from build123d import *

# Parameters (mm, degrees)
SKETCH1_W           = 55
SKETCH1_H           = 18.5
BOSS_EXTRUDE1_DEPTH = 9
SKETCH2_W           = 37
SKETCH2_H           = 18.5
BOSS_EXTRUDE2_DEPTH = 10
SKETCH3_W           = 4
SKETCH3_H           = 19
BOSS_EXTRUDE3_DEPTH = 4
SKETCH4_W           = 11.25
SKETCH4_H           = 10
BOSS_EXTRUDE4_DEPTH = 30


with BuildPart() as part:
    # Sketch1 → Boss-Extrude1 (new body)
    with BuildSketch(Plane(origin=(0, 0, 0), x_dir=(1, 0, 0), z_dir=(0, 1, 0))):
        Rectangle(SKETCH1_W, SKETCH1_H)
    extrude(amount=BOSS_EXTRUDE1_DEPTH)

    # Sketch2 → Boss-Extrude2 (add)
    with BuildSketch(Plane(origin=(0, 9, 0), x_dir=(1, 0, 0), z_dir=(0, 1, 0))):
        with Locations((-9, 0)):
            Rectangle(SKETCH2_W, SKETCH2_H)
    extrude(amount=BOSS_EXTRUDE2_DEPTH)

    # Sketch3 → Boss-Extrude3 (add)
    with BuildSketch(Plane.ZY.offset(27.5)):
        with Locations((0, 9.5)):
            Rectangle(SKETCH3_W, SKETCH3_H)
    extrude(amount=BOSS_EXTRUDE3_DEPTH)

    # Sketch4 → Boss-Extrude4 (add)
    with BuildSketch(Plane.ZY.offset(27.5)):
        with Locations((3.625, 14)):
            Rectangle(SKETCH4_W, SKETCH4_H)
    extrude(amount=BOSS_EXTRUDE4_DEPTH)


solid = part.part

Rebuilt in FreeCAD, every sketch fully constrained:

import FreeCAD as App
import Part
import Sketcher

V = App.Vector


def add_polygon(sketch, points):
    """Adds a closed chain of lines whose ends are joined by coincident constraints."""
    first, n = sketch.GeometryCount, len(points)
    for a, b in zip(points, points[1:] + points[:1]):
        sketch.addGeometry(Part.LineSegment(App.Vector(*a, 0), App.Vector(*b, 0)), False)
    for i in range(n):
        sketch.addConstraint(Sketcher.Constraint("Coincident", first + i, 2, first + (i + 1) % n, 1))

doc = App.newDocument("Part")
params = doc.addObject("Spreadsheet::Sheet", "Params")
for row, (alias, value) in enumerate([
    ("sketch1_width", "55 mm"),
    ("sketch1_height", "18.5 mm"),
    ("pad1_length", "9 mm"),
    ("sketch2_width", "37 mm"),
    ("sketch2_height", "18.5 mm"),
    ("pad2_length", "10 mm"),
    ("sketch3_width", "19 mm"),
    ("sketch3_height", "4 mm"),
    ("pad3_length", "4 mm"),
    ("sketch4_width", "10 mm"),
    ("sketch4_height", "11.25 mm"),
    ("pad4_length", "30 mm"),
], start=1):
    params.set(f"A{row}", alias)
    params.set(f"B{row}", "=" + value)
    params.setAlias(f"B{row}", alias)

body = doc.addObject("PartDesign::Body", "Body")

sketch1 = doc.addObject("Sketcher::SketchObject", "Sketch")
body.addObject(sketch1)
sketch1.AttachmentSupport = (doc.XZ_Plane, [""])
sketch1.MapMode = "FlatFace"
add_polygon(sketch1, [(-28, -9), (-28, 9), (28, 9), (28, -9)])
sketch1.addConstraint([
    Sketcher.Constraint("Vertical", 0),
    Sketcher.Constraint("Horizontal", 1),
    Sketcher.Constraint("Vertical", 2),
    Sketcher.Constraint("Horizontal", 3),
    Sketcher.Constraint("Symmetric", 0, 2, 2, 2, -1, 1),
    Sketcher.Constraint("DistanceX", 1, 1, 1, 2, 55.0),
    Sketcher.Constraint("DistanceY", 0, 1, 0, 2, 18.5),
])
sketch1.setExpression("Constraints[9]", "Params.sketch1_width")
sketch1.setExpression("Constraints[10]", "Params.sketch1_height")
pad1 = doc.addObject("PartDesign::Pad", "Pad")
body.addObject(pad1)
pad1.Profile = sketch1
pad1.setExpression("Length", "Params.pad1_length")
pad1.Reversed = True

sketch2 = doc.addObject("Sketcher::SketchObject", "Sketch001")
body.addObject(sketch2)
sketch2.AttachmentSupport = (doc.XZ_Plane, [""])
sketch2.MapMode = "FlatFace"
sketch2.AttachmentOffset = App.Placement(V(0, 0, -9), App.Rotation())
add_polygon(sketch2, [(-28, -9), (-28, 9), (10, 9), (10, -9)])
sketch2.addConstraint([
    Sketcher.Constraint("Vertical", 0),
    Sketcher.Constraint("Horizontal", 1),
    Sketcher.Constraint("Vertical", 2),
    Sketcher.Constraint("Horizontal", 3),
    Sketcher.Constraint("DistanceX", 1, 1, 1, 2, 37.0),
    Sketcher.Constraint("DistanceY", 0, 1, 0, 2, 18.5),
    Sketcher.Constraint("DistanceX", 0, 2, -1, 1, 27.5),
    Sketcher.Constraint("DistanceY", -1, 1, 0, 2, 9.25),
])
sketch2.setExpression("Constraints[8]", "Params.sketch2_width")
sketch2.setExpression("Constraints[9]", "Params.sketch2_height")
pad2 = doc.addObject("PartDesign::Pad", "Pad001")
body.addObject(pad2)
pad2.Profile = sketch2
pad2.setExpression("Length", "Params.pad2_length")
pad2.Reversed = True

sketch3 = doc.addObject("Sketcher::SketchObject", "Sketch002")
body.addObject(sketch3)
sketch3.AttachmentSupport = (doc.YZ_Plane, [""])
sketch3.MapMode = "FlatFace"
sketch3.AttachmentOffset = App.Placement(V(0, 0, -27.5), App.Rotation())
add_polygon(sketch3, [(19, -2), (0, -2), (0, 2), (19, 2)])
sketch3.addConstraint([
    Sketcher.Constraint("Horizontal", 0),
    Sketcher.Constraint("Vertical", 1),
    Sketcher.Constraint("Horizontal", 2),
    Sketcher.Constraint("Vertical", 3),
    Sketcher.Constraint("Symmetric", 0, 2, 1, 2, -1, 1),
    Sketcher.Constraint("DistanceX", 0, 2, 0, 1, 19.0),
    Sketcher.Constraint("DistanceY", 1, 1, 1, 2, 4.0),
])
sketch3.setExpression("Constraints[9]", "Params.sketch3_width")
sketch3.setExpression("Constraints[10]", "Params.sketch3_height")
pad3 = doc.addObject("PartDesign::Pad", "Pad002")
body.addObject(pad3)
pad3.Profile = sketch3
pad3.setExpression("Length", "Params.pad3_length")
pad3.Reversed = True

sketch4 = doc.addObject("Sketcher::SketchObject", "Sketch003")
body.addObject(sketch4)
sketch4.AttachmentSupport = (doc.YZ_Plane, [""])
sketch4.MapMode = "FlatFace"
sketch4.AttachmentOffset = App.Placement(V(0, 0, -27.5), App.Rotation())
add_polygon(sketch4, [(19, -2), (9, -2), (9, 9), (19, 9)])
sketch4.addConstraint([
    Sketcher.Constraint("Horizontal", 0),
    Sketcher.Constraint("Vertical", 1),
    Sketcher.Constraint("Horizontal", 2),
    Sketcher.Constraint("Vertical", 3),
    Sketcher.Constraint("DistanceX", 0, 2, 0, 1, 10.0),
    Sketcher.Constraint("DistanceX", -1, 1, 0, 2, 9.0),
    Sketcher.Constraint("DistanceY", 0, 2, -1, 1, 2.0),
    Sketcher.Constraint("DistanceY", 1, 1, 1, 2, 11.25),
])
sketch4.setExpression("Constraints[8]", "Params.sketch4_width")
sketch4.setExpression("Constraints[11]", "Params.sketch4_height")
pad4 = doc.addObject("PartDesign::Pad", "Pad003")
body.addObject(pad4)
pad4.Profile = sketch4
pad4.setExpression("Length", "Params.pad4_length")
pad4.Reversed = True

doc.recompute()
